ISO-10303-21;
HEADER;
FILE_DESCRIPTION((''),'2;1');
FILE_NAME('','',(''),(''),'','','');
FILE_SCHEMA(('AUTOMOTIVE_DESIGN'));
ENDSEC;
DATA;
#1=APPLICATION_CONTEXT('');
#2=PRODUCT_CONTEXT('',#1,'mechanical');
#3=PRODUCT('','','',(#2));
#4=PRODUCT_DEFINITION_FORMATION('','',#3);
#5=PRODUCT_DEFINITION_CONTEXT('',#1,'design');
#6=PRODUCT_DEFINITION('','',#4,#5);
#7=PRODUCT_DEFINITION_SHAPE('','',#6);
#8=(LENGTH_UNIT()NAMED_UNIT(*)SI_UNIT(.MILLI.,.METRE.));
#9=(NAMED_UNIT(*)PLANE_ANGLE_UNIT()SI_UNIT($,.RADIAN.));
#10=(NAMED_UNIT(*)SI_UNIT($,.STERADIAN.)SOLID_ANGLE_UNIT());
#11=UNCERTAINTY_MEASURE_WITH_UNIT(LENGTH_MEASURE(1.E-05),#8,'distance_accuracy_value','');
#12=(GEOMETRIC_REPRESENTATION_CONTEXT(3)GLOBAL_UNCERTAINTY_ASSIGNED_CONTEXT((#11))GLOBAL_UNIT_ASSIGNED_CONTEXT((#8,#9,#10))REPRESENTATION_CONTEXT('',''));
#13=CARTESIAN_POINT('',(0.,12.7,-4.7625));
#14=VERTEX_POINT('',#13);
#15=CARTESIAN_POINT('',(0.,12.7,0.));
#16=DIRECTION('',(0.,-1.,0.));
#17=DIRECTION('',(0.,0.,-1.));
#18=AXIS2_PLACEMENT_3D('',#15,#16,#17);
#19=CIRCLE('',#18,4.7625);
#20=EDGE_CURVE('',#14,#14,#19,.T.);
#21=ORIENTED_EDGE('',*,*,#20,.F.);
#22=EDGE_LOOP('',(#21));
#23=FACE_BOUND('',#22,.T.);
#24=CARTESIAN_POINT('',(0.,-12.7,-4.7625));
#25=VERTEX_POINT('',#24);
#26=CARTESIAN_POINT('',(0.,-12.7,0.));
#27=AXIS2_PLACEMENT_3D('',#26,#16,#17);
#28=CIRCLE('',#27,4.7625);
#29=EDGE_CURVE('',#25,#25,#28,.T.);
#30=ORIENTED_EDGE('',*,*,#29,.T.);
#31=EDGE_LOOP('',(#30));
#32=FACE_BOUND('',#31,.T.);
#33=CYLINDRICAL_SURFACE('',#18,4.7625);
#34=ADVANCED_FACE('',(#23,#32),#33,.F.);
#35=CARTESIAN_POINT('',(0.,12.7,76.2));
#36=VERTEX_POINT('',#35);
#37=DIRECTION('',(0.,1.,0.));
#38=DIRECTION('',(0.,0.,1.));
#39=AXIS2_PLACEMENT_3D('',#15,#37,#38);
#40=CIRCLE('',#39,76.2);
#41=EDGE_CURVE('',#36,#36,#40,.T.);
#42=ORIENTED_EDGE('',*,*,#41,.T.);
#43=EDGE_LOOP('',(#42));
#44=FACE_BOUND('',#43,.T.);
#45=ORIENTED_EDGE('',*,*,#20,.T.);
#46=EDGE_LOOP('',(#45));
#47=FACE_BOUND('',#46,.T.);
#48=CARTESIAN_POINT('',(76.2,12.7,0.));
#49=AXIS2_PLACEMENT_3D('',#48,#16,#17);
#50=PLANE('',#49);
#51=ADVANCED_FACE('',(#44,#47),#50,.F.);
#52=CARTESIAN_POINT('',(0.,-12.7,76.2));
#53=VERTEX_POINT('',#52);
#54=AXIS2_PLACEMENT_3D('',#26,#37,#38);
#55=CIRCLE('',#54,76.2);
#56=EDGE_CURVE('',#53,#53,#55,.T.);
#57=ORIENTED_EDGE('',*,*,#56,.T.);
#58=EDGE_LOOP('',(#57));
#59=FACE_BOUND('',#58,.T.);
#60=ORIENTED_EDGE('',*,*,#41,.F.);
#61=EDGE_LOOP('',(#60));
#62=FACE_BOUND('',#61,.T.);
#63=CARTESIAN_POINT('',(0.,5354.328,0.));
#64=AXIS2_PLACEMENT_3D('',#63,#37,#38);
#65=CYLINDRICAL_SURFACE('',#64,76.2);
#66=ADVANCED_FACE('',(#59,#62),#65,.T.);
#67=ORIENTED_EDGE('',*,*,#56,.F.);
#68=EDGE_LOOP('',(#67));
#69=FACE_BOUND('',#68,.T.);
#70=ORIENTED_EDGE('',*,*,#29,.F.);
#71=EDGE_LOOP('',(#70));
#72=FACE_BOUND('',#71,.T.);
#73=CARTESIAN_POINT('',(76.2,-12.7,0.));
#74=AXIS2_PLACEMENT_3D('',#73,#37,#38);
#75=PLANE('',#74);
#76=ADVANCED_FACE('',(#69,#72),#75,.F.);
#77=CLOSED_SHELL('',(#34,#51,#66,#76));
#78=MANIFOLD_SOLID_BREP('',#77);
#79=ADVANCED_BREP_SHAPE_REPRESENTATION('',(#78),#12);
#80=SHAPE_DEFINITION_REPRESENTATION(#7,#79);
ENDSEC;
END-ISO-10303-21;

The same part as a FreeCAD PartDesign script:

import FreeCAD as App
import Part
import Sketcher
Q = App.Units.Quantity


def add_polygon(sketch, points):
    """Adds a closed chain of lines whose ends are joined by coincident constraints."""
    first, n = sketch.GeometryCount, len(points)
    for a, b in zip(points, points[1:] + points[:1]):
        sketch.addGeometry(Part.LineSegment(App.Vector(*a, 0), App.Vector(*b, 0)), False)
    for i in range(n):
        sketch.addConstraint(Sketcher.Constraint("Coincident", first + i, 2, first + (i + 1) % n, 1))

doc = App.newDocument("Part")
params = doc.addObject("Spreadsheet::Sheet", "Params")
for row, (alias, value) in enumerate([
    ("sketch1_width", "3 in"),
    ("sketch1_height", "1 in"),
    ("revolution_angle", "360 deg"),
    ("sketch2_diameter", "0.375 in"),
], start=1):
    params.set(f"A{row}", alias)
    params.set(f"B{row}", "=" + value)
    params.setAlias(f"B{row}", alias)

body = doc.addObject("PartDesign::Body", "Body")

sketch1 = doc.addObject("Sketcher::SketchObject", "Sketch")
body.addObject(sketch1)
sketch1.AttachmentSupport = (doc.XY_Plane, [""])
sketch1.MapMode = "FlatFace"
add_polygon(sketch1, [(0, 13), (0, -13), (76, -13), (76, 13)])
sketch1.addConstraint(Sketcher.Constraint("Vertical", 0))
sketch1.addConstraint(Sketcher.Constraint("Horizontal", 1))
sketch1.addConstraint(Sketcher.Constraint("Vertical", 2))
sketch1.addConstraint(Sketcher.Constraint("Horizontal", 3))
sketch1.addConstraint(Sketcher.Constraint("Symmetric", 0, 2, 3, 2, -1, 1))
sketch1.addConstraint(Sketcher.Constraint("DistanceX", 1, 1, 1, 2, Q("3 in")))
sketch1.addConstraint(Sketcher.Constraint("DistanceY", 0, 2, 0, 1, Q("1 in")))
sketch1.setExpression("Constraints[9]", "Params.sketch1_width")
sketch1.setExpression("Constraints[10]", "Params.sketch1_height")
revolution = doc.addObject("PartDesign::Revolution", "Revolution")
body.addObject(revolution)
revolution.Profile = sketch1
revolution.ReferenceAxis = (sketch1, ["V_Axis"])
revolution.setExpression("Angle", "Params.revolution_angle")

sketch2 = doc.addObject("Sketcher::SketchObject", "Sketch001")
body.addObject(sketch2)
sketch2.AttachmentSupport = (doc.XZ_Plane, [""])
sketch2.MapMode = "FlatFace"
sketch2.AttachmentOffset = App.Placement(App.Vector(0, 0, 0.5 * 25.4), App.Rotation())
sketch2.addGeometry(Part.Circle(App.Vector(0, 0, 0), App.Vector(0, 0, 1), 4.8), False)
sketch2.addConstraint(Sketcher.Constraint("Coincident", 0, 3, -1, 1))
sketch2.addConstraint(Sketcher.Constraint("Diameter", 0, Q("0.375 in")))
sketch2.setExpression("Constraints[1]", "Params.sketch2_diameter")
pocket1 = doc.addObject("PartDesign::Pocket", "Pocket")
body.addObject(pocket1)
pocket1.Profile = sketch2
pocket1.Type = "ThroughAll"

doc.recompute()
